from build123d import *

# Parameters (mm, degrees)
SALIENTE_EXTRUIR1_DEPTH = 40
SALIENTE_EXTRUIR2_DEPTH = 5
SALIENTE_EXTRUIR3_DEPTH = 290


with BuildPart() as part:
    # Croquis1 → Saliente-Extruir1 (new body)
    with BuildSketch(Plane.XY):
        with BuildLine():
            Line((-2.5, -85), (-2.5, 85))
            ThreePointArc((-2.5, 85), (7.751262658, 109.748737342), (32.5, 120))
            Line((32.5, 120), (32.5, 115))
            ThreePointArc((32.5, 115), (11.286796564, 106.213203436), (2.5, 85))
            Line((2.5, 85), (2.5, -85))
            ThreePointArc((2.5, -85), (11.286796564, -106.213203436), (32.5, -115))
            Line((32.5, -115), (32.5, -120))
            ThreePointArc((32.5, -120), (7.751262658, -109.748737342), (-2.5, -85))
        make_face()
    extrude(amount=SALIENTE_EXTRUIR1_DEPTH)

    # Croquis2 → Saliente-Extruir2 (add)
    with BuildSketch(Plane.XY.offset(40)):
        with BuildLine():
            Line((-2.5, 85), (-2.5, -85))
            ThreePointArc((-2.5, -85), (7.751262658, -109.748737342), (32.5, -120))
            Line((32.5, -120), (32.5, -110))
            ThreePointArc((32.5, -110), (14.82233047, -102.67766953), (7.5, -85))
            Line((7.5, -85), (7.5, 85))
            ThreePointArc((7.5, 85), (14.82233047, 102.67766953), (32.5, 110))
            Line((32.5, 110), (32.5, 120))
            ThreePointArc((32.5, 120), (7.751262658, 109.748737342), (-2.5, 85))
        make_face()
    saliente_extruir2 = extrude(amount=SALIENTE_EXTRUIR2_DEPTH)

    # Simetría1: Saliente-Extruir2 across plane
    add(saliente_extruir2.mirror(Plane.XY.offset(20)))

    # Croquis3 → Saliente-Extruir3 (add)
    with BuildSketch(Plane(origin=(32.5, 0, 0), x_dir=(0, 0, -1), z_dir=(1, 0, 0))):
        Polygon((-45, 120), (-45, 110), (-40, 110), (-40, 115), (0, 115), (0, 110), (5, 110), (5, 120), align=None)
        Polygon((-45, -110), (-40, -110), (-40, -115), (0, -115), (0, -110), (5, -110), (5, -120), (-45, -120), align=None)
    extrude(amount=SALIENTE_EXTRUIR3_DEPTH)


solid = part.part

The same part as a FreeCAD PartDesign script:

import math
import FreeCAD as App
import Part
import Sketcher

V = App.Vector

doc = App.newDocument("Part")
body = doc.addObject("PartDesign::Body", "Body")

# Sketch on XY plane
sketch1 = doc.addObject("Sketcher::SketchObject", "Sketch")
body.addObject(sketch1)
sketch1.AttachmentSupport = (doc.XY_Plane, [""])
sketch1.MapMode = "FlatFace"
sketch1.addGeometry(Part.LineSegment(V(-2, 85, 0), V(-2, -85, 0)), False)
sketch1.addGeometry(Part.ArcOfCircle(Part.Circle(V(32, -85, 0), V(0, 0, 1), 35), math.radians(180), math.radians(270)), False)
sketch1.addGeometry(Part.LineSegment(V(32, -120, 0), V(32, -115, 0)), False)
sketch1.addGeometry(Part.ArcOfCircle(Part.Circle(V(32, -85, 0), V(0, 0, 1), 30), math.radians(180), math.radians(270)), False)
sketch1.addGeometry(Part.LineSegment(V(2, -85, 0), V(2, 85, 0)), False)
sketch1.addGeometry(Part.ArcOfCircle(Part.Circle(V(32, 85, 0), V(0, 0, 1), 30), math.radians(90), math.radians(180)), False)
sketch1.addGeometry(Part.LineSegment(V(32, 115, 0), V(32, 120, 0)), False)
sketch1.addGeometry(Part.ArcOfCircle(Part.Circle(V(32, 85, 0), V(0, 0, 1), 35), math.radians(90), math.radians(180)), False)
sketch1.addConstraint(Sketcher.Constraint("Tangent", 0, 2, 1, 1))
sketch1.addConstraint(Sketcher.Constraint("Coincident", 1, 2, 2, 1))
sketch1.addConstraint(Sketcher.Constraint("Coincident", 2, 2, 3, 2))
sketch1.addConstraint(Sketcher.Constraint("Tangent", 3, 1, 4, 1))
sketch1.addConstraint(Sketcher.Constraint("Tangent", 4, 2, 5, 2))
sketch1.addConstraint(Sketcher.Constraint("Coincident", 5, 1, 6, 1))
sketch1.addConstraint(Sketcher.Constraint("Coincident", 6, 2, 7, 1))
sketch1.addConstraint(Sketcher.Constraint("Tangent", 7, 2, 0, 1))
sketch1.addConstraint(Sketcher.Constraint("Vertical", 0))
sketch1.addConstraint(Sketcher.Constraint("Vertical", 2))
sketch1.addConstraint(Sketcher.Constraint("Vertical", 4))
sketch1.addConstraint(Sketcher.Constraint("Vertical", 6))
sketch1.addConstraint(Sketcher.Constraint("Coincident", 3, 3, 1, 3))
sketch1.addConstraint(Sketcher.Constraint("Coincident", 7, 3, 5, 3))
sketch1.addConstraint(Sketcher.Constraint("Equal", 3, 5))
sketch1.addConstraint(Sketcher.Constraint("Symmetric", 0, 2, 4, 2, -1, 1))
sketch1.addConstraint(Sketcher.Constraint("Vertical", 7, 3, 1, 2))
sketch1.addConstraint(Sketcher.Constraint("Vertical", 2, 2, 5, 1))
sketch1.addConstraint(Sketcher.Constraint("Radius", 1, 35.0))
sketch1.addConstraint(Sketcher.Constraint("Radius", 3, 30.0))
sketch1.addConstraint(Sketcher.Constraint("DistanceY", 0, 2, 0, 1, 170.0))
pad1 = doc.addObject("PartDesign::Pad", "Pad")
body.addObject(pad1)
pad1.Profile = sketch1
pad1.Length = 40

# Sketch on XY plane
sketch2 = doc.addObject("Sketcher::SketchObject", "Sketch001")
body.addObject(sketch2)
sketch2.AttachmentSupport = (doc.XY_Plane, [""])
sketch2.MapMode = "FlatFace"
sketch2.AttachmentOffset = App.Placement(V(0, 0, 40), App.Rotation())
sketch2.addGeometry(Part.LineSegment(V(-2, 85, 0), V(-2, -85, 0)), False)
sketch2.addGeometry(Part.ArcOfCircle(Part.Circle(V(32, -85, 0), V(0, 0, 1), 35), math.radians(180), math.radians(270)), False)
sketch2.addGeometry(Part.LineSegment(V(32, -120, 0), V(32, -110, 0)), False)
sketch2.addGeometry(Part.ArcOfCircle(Part.Circle(V(32, -85, 0), V(0, 0, 1), 25), math.radians(180), math.radians(270)), False)
sketch2.addGeometry(Part.LineSegment(V(8, -85, 0), V(8, 85, 0)), False)
sketch2.addGeometry(Part.ArcOfCircle(Part.Circle(V(32, 85, 0), V(0, 0, 1), 25), math.radians(90), math.radians(180)), False)
sketch2.addGeometry(Part.LineSegment(V(32, 110, 0), V(32, 120, 0)), False)
sketch2.addGeometry(Part.ArcOfCircle(Part.Circle(V(32, 85, 0), V(0, 0, 1), 35), math.radians(90), math.radians(180)), False)
sketch2.addConstraint(Sketcher.Constraint("Tangent", 0, 2, 1, 1))
sketch2.addConstraint(Sketcher.Constraint("Coincident", 1, 2, 2, 1))
sketch2.addConstraint(Sketcher.Constraint("Coincident", 2, 2, 3, 2))
sketch2.addConstraint(Sketcher.Constraint("Tangent", 3, 1, 4, 1))
sketch2.addConstraint(Sketcher.Constraint("Tangent", 4, 2, 5, 2))
sketch2.addConstraint(Sketcher.Constraint("Coincident", 5, 1, 6, 1))
sketch2.addConstraint(Sketcher.Constraint("Coincident", 6, 2, 7, 1))
sketch2.addConstraint(Sketcher.Constraint("Tangent", 7, 2, 0, 1))
sketch2.addConstraint(Sketcher.Constraint("Vertical", 0))
sketch2.addConstraint(Sketcher.Constraint("Vertical", 2))
sketch2.addConstraint(Sketcher.Constraint("Vertical", 4))
sketch2.addConstraint(Sketcher.Constraint("Vertical", 6))
sketch2.addConstraint(Sketcher.Constraint("Coincident", 3, 3, 1, 3))
sketch2.addConstraint(Sketcher.Constraint("Coincident", 7, 3, 5, 3))
sketch2.addConstraint(Sketcher.Constraint("Equal", 3, 5))
sketch2.addConstraint(Sketcher.Constraint("Symmetric", 2, 2, 5, 1, -1))
sketch2.addConstraint(Sketcher.Constraint("Vertical", 7, 3, 1, 2))
sketch2.addConstraint(Sketcher.Constraint("Radius", 1, 35.0))
sketch2.addConstraint(Sketcher.Constraint("Radius", 3, 25.0))
sketch2.addConstraint(Sketcher.Constraint("DistanceY", 0, 2, 0, 1, 170.0))
sketch2.addConstraint(Sketcher.Constraint("DistanceX", -1, 1, 1, 3, 32.5))
pad2 = doc.addObject("PartDesign::Pad", "Pad001")
body.addObject(pad2)
pad2.Profile = sketch2
pad2.Length = 5
doc.recompute()

datumplane = doc.addObject("PartDesign::Plane", "DatumPlane")
body.addObject(datumplane)
datumplane.AttachmentSupport = (doc.XY_Plane, [""])
datumplane.MapMode = "FlatFace"
datumplane.AttachmentOffset = App.Placement(V(0, 0, 20), App.Rotation())
mirrored = doc.addObject("PartDesign::Mirrored", "Mirrored")
body.addObject(mirrored)
mirrored.Originals = [pad2]
mirrored.MirrorPlane = (datumplane, [""])
body.Tip = mirrored

# Sketch on YZ plane
sketch3 = doc.addObject("Sketcher::SketchObject", "Sketch002")
body.addObject(sketch3)
sketch3.AttachmentSupport = (doc.YZ_Plane, [""])
sketch3.MapMode = "FlatFace"
sketch3.AttachmentOffset = App.Placement(V(0, 0, 32.5), App.Rotation())
sketch3.addGeometry(Part.LineSegment(V(120, 45, 0), V(110, 45, 0)), False)
sketch3.addGeometry(Part.LineSegment(V(110, 45, 0), V(110, 40, 0)), False)
sketch3.addGeometry(Part.LineSegment(V(110, 40, 0), V(115, 40, 0)), False)
sketch3.addGeometry(Part.LineSegment(V(115, 40, 0), V(115, 0, 0)), False)
sketch3.addGeometry(Part.LineSegment(V(115, 0, 0), V(110, 0, 0)), False)
sketch3.addGeometry(Part.LineSegment(V(110, 0, 0), V(110, -5, 0)), False)
sketch3.addGeometry(Part.LineSegment(V(110, -5, 0), V(120, -5, 0)), False)
sketch3.addGeometry(Part.LineSegment(V(120, -5, 0), V(120, 45, 0)), False)
sketch3.addGeometry(Part.LineSegment(V(-110, 40, 0), V(-110, 45, 0)), False)
sketch3.addGeometry(Part.LineSegment(V(-110, 45, 0), V(-120, 45, 0)), False)
sketch3.addGeometry(Part.LineSegment(V(-120, 45, 0), V(-120, -5, 0)), False)
sketch3.addGeometry(Part.LineSegment(V(-120, -5, 0), V(-110, -5, 0)), False)
sketch3.addGeometry(Part.LineSegment(V(-110, -5, 0), V(-110, 0, 0)), False)
sketch3.addGeometry(Part.LineSegment(V(-110, 0, 0), V(-115, 0, 0)), False)
sketch3.addGeometry(Part.LineSegment(V(-115, 0, 0), V(-115, 40, 0)), False)
sketch3.addGeometry(Part.LineSegment(V(-115, 40, 0), V(-110, 40, 0)), False)
sketch3.addConstraint(Sketcher.Constraint("Coincident", 0, 2, 1, 1))
sketch3.addConstraint(Sketcher.Constraint("Coincident", 1, 2, 2, 1))
sketch3.addConstraint(Sketcher.Constraint("Coincident", 2, 2, 3, 1))
sketch3.addConstraint(Sketcher.Constraint("Coincident", 3, 2, 4, 1))
sketch3.addConstraint(Sketcher.Constraint("Coincident", 4, 2, 5, 1))
sketch3.addConstraint(Sketcher.Constraint("Coincident", 5, 2, 6, 1))
sketch3.addConstraint(Sketcher.Constraint("Coincident", 6, 2, 7, 1))
sketch3.addConstraint(Sketcher.Constraint("Coincident", 7, 2, 0, 1))
sketch3.addConstraint(Sketcher.Constraint("Coincident", 8, 2, 9, 1))
sketch3.addConstraint(Sketcher.Constraint("Coincident", 9, 2, 10, 1))
sketch3.addConstraint(Sketcher.Constraint("Coincident", 10, 2, 11, 1))
sketch3.addConstraint(Sketcher.Constraint("Coincident", 11, 2, 12, 1))
sketch3.addConstraint(Sketcher.Constraint("Coincident", 12, 2, 13, 1))
sketch3.addConstraint(Sketcher.Constraint("Coincident", 13, 2, 14, 1))
sketch3.addConstraint(Sketcher.Constraint("Coincident", 14, 2, 15, 1))
sketch3.addConstraint(Sketcher.Constraint("Coincident", 15, 2, 8, 1))
sketch3.addConstraint(Sketcher.Constraint("Horizontal", 0))
sketch3.addConstraint(Sketcher.Constraint("Vertical", 1))
sketch3.addConstraint(Sketcher.Constraint("Horizontal", 2))
sketch3.addConstraint(Sketcher.Constraint("Vertical", 3))
sketch3.addConstraint(Sketcher.Constraint("Horizontal", 4))
sketch3.addConstraint(Sketcher.Constraint("Vertical", 5))
sketch3.addConstraint(Sketcher.Constraint("Horizontal", 6))
sketch3.addConstraint(Sketcher.Constraint("Vertical", 7))
sketch3.addConstraint(Sketcher.Constraint("Vertical", 8))
sketch3.addConstraint(Sketcher.Constraint("Horizontal", 9))
sketch3.addConstraint(Sketcher.Constraint("Vertical", 10))
sketch3.addConstraint(Sketcher.Constraint("Horizontal", 11))
sketch3.addConstraint(Sketcher.Constraint("Vertical", 12))
sketch3.addConstraint(Sketcher.Constraint("Horizontal", 13))
sketch3.addConstraint(Sketcher.Constraint("Vertical", 14))
sketch3.addConstraint(Sketcher.Constraint("Horizontal", 15))
sketch3.addConstraint(Sketcher.Constraint("Symmetric", 4, 2, 12, 2, -1, 1))
sketch3.addConstraint(Sketcher.Constraint("Symmetric", 0, 2, 8, 2, -2))
sketch3.addConstraint(Sketcher.Constraint("Symmetric", 6, 2, 10, 2, -2))
sketch3.addConstraint(Sketcher.Constraint("Symmetric", 3, 2, 13, 2, -2))
sketch3.addConstraint(Sketcher.Constraint("Horizontal", 2, 2, 14, 2))
sketch3.addConstraint(Sketcher.Constraint("Vertical", 1, 2, 4, 2))
sketch3.addConstraint(Sketcher.Constraint("Equal", 15, 1))
sketch3.addConstraint(Sketcher.Constraint("Equal", 1, 5))
sketch3.addConstraint(Sketcher.Constraint("DistanceX", 0, 2, 0, 1, 10.0))
sketch3.addConstraint(Sketcher.Constraint("DistanceX", 2, 1, 2, 2, 5.0))
sketch3.addConstraint(Sketcher.Constraint("DistanceY", 3, 2, 3, 1, 40.0))
sketch3.addConstraint(Sketcher.Constraint("DistanceX", -1, 1, 0, 2, 110.0))
pad3 = doc.addObject("PartDesign::Pad", "Pad002")
body.addObject(pad3)
pad3.Profile = sketch3
pad3.Length = 290

doc.recompute()
